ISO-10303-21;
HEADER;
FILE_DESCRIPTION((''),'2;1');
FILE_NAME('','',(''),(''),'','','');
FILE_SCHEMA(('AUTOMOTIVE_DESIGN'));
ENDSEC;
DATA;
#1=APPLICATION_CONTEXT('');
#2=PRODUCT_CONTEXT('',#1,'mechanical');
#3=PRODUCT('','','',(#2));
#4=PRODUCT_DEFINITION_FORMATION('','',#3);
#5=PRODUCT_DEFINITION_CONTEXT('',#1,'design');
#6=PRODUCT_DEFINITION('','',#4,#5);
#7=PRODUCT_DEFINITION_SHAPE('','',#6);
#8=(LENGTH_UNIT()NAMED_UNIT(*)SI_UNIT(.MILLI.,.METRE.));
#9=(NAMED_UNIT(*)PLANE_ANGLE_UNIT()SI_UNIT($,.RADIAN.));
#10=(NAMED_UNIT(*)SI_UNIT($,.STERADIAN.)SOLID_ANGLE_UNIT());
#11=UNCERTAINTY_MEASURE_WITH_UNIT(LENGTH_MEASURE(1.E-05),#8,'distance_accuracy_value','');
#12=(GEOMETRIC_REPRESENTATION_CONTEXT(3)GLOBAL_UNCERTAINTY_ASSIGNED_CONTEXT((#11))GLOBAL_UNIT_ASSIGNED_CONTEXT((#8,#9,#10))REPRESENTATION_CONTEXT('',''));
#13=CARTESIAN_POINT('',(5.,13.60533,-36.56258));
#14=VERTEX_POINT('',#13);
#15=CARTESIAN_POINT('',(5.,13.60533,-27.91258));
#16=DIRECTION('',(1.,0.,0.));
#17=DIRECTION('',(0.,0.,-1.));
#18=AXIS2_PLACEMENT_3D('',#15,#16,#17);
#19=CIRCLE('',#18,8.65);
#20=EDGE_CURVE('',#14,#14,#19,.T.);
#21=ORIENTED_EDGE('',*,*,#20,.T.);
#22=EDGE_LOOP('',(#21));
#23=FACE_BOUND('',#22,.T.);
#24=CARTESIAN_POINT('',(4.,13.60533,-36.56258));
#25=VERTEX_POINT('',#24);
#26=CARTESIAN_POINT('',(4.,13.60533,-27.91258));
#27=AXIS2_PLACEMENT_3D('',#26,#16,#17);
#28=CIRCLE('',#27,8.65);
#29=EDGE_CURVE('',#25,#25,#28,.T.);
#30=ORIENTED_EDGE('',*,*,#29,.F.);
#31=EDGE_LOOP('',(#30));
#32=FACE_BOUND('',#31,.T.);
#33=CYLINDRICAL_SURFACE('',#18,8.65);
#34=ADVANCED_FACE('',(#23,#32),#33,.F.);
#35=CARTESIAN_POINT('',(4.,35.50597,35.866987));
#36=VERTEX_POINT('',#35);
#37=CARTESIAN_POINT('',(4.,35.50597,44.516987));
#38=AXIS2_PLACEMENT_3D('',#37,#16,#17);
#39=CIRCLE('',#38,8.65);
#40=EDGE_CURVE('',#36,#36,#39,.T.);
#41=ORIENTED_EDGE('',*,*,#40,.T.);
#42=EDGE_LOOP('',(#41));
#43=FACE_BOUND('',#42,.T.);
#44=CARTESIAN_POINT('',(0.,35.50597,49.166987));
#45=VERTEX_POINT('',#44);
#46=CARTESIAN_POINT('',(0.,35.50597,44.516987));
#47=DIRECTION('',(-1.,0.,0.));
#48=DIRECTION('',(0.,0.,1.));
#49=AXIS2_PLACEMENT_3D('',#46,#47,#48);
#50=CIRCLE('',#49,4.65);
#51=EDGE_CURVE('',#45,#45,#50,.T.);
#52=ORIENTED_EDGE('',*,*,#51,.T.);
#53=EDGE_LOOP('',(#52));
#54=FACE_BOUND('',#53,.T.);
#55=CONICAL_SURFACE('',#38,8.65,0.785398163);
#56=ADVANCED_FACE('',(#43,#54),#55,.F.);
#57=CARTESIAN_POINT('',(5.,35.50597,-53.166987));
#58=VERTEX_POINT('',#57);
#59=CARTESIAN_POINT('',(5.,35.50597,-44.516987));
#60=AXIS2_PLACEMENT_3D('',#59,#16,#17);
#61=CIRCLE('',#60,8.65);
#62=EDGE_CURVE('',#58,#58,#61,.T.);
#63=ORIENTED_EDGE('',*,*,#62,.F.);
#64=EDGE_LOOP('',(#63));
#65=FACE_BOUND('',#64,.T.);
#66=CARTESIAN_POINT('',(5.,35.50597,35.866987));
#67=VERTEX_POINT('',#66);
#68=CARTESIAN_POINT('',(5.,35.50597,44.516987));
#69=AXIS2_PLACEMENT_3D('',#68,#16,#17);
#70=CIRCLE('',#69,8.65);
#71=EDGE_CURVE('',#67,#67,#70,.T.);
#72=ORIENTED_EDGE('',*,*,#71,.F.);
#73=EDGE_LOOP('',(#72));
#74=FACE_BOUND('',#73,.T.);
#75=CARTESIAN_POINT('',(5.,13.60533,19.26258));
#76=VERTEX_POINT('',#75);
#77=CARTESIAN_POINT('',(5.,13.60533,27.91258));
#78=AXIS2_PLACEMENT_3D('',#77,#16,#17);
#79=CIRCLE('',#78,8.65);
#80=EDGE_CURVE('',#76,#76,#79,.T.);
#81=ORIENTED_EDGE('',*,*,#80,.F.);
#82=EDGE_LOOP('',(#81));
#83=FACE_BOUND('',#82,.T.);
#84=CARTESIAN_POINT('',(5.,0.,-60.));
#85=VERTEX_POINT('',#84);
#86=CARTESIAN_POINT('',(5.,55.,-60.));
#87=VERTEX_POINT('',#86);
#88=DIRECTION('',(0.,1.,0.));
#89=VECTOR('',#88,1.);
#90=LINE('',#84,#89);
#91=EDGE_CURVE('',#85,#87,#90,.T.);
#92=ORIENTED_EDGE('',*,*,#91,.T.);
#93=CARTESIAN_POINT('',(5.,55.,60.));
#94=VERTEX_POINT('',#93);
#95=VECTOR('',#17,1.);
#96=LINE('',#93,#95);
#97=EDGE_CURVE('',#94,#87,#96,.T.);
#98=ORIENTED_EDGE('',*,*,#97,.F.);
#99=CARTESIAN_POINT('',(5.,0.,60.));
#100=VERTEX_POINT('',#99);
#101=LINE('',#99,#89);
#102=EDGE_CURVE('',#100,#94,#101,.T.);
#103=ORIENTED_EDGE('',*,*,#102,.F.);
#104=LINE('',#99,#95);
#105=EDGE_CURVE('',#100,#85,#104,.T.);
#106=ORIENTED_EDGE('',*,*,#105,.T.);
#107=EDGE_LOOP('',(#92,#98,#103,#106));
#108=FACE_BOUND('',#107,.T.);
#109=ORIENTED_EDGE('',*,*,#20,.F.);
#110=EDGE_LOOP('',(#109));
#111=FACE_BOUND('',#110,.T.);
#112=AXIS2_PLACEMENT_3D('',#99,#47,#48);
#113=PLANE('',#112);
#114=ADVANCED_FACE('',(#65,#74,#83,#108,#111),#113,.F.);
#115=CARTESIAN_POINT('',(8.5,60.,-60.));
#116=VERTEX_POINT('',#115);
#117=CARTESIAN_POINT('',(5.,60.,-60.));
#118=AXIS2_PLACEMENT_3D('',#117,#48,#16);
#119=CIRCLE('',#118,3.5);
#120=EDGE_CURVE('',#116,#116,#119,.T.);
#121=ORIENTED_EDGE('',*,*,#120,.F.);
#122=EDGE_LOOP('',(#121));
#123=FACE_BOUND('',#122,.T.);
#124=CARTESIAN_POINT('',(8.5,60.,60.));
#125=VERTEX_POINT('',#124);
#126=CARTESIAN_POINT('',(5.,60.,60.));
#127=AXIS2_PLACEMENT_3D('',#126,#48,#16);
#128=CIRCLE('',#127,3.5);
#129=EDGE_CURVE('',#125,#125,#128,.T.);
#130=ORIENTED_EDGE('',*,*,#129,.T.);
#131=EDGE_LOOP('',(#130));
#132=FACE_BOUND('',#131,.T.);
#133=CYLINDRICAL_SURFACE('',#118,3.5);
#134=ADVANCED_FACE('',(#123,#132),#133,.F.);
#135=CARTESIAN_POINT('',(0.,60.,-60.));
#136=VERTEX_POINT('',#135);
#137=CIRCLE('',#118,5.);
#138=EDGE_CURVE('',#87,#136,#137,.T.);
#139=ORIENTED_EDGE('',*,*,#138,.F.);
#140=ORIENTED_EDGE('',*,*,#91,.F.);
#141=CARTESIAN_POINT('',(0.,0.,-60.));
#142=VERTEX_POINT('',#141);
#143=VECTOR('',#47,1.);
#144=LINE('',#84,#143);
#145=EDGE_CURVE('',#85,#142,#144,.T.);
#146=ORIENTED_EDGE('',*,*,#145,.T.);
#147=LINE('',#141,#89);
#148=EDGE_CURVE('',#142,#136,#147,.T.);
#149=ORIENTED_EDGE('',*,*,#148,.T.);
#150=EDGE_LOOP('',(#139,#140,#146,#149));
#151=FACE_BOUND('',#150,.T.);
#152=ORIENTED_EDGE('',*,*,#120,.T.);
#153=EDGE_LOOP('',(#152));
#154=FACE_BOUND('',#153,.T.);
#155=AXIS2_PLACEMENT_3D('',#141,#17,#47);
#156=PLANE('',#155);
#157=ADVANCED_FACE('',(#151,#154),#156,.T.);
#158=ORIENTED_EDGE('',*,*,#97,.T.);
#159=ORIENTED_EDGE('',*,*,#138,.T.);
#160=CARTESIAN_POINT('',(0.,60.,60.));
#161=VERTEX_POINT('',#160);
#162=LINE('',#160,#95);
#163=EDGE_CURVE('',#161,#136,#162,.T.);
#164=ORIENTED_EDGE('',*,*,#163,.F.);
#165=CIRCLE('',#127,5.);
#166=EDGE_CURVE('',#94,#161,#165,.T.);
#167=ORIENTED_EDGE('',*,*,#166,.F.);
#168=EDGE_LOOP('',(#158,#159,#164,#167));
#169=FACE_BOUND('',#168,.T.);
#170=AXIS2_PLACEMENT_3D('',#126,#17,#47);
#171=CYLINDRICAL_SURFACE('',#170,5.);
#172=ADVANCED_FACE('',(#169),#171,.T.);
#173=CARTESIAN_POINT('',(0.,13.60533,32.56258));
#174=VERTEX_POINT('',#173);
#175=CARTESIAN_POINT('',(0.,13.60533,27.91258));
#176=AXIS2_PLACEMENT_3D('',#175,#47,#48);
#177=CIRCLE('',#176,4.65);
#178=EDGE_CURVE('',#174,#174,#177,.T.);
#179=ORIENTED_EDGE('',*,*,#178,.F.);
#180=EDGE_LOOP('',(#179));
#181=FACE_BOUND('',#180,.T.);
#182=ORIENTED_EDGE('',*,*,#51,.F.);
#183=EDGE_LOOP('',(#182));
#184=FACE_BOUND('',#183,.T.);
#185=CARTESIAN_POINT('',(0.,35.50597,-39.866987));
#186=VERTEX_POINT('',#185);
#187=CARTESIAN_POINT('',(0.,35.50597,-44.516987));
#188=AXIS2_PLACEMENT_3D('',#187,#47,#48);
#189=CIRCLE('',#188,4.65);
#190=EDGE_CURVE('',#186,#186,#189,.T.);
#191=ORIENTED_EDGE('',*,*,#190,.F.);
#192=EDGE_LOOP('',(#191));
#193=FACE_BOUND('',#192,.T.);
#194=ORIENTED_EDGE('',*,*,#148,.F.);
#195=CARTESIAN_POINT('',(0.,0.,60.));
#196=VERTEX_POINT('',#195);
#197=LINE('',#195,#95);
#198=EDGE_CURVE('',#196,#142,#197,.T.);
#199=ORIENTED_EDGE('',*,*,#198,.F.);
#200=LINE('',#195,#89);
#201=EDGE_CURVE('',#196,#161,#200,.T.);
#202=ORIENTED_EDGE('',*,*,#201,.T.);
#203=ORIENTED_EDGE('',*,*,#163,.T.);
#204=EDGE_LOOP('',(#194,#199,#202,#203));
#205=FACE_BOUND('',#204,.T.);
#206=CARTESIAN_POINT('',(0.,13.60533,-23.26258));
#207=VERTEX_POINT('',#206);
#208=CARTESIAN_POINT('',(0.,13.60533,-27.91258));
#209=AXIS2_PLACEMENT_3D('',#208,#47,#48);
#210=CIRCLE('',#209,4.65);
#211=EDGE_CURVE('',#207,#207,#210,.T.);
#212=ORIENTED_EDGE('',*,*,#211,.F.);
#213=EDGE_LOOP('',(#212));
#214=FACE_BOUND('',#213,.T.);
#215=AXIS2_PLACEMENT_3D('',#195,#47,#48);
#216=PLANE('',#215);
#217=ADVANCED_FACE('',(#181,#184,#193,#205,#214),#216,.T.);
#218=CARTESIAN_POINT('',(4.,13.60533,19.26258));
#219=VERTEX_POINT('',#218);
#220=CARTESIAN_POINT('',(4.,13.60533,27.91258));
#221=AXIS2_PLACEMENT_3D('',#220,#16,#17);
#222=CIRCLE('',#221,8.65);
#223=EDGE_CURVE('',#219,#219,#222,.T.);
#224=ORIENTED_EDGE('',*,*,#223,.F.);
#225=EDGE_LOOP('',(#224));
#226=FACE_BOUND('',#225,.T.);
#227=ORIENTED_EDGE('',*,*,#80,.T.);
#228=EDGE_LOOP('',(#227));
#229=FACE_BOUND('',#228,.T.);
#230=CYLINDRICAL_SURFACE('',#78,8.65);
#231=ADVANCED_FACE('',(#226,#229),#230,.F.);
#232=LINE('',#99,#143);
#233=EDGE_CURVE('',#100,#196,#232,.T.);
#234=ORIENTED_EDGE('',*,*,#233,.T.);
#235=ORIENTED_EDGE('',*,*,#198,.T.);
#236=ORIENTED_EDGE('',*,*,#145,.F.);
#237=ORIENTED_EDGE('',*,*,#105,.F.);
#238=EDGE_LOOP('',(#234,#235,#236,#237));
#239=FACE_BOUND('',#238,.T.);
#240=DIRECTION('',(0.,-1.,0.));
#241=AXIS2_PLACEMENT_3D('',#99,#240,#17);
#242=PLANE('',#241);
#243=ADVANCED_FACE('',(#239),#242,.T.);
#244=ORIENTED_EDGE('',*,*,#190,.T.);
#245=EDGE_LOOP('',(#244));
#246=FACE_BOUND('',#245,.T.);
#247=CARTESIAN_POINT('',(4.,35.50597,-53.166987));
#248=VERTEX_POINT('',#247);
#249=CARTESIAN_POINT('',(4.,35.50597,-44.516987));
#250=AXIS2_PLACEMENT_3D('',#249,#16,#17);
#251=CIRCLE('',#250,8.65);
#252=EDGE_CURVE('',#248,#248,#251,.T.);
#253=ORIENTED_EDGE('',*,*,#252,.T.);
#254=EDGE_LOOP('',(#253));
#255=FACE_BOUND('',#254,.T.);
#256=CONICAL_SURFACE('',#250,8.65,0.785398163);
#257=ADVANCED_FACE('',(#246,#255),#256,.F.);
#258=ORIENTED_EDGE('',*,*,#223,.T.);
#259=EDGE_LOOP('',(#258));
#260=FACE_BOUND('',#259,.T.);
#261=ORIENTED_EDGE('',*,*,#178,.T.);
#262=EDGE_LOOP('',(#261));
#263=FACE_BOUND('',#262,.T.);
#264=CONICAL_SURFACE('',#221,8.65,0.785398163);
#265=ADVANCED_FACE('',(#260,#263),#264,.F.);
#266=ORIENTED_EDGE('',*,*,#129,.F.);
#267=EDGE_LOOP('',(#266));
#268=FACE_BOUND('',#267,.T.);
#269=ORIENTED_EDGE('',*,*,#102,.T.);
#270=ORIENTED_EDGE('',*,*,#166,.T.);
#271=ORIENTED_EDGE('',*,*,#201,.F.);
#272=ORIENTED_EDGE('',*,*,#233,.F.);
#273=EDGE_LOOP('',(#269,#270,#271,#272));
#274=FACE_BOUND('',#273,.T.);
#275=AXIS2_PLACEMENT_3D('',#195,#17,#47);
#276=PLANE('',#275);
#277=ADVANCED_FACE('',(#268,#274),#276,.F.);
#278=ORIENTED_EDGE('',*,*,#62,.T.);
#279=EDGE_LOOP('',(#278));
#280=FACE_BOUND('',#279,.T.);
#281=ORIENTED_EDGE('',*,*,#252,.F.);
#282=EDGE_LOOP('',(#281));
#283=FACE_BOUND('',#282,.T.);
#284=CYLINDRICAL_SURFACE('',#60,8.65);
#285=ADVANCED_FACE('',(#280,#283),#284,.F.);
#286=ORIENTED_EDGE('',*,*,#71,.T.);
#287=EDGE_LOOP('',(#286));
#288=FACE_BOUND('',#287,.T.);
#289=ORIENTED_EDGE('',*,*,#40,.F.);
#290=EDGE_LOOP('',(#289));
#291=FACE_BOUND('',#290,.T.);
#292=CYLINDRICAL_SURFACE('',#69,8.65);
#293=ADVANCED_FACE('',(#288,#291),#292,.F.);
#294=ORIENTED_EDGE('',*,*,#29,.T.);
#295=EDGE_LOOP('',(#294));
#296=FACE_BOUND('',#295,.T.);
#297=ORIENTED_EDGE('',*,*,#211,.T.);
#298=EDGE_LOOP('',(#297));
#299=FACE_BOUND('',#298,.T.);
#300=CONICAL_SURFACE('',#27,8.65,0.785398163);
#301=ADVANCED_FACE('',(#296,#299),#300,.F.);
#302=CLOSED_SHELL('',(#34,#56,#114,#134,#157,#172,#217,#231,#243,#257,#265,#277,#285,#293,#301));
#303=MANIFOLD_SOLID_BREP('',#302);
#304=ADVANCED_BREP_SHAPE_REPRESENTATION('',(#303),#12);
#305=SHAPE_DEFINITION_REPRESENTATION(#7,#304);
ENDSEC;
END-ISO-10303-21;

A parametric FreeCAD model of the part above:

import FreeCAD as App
import Part
import Sketcher

V = App.Vector
Q = App.Units.Quantity

doc = App.newDocument("Part")
body = doc.addObject("PartDesign::Body", "Body")

# Sketch on XY plane
sketch1 = body.newObject("Sketcher::SketchObject", "Sketch")
sketch1.AttachmentSupport = (doc.getObject("XY_Plane"), [""])
sketch1.MapMode = "FlatFace"
sketch1.addGeometry([
    Part.LineSegment(V(0, 60, 0), V(0, 0, 0)),
    Part.LineSegment(V(0, 0, 0), V(5, 0, 0)),
    Part.LineSegment(V(5, 0, 0), V(5, 60, 0)),
    Part.LineSegment(V(5, 60, 0), V(0, 60, 0)),
], False)
sketch1.addConstraint([
    Sketcher.Constraint("Coincident", 0, 2, 1, 1),
    Sketcher.Constraint("Coincident", 1, 2, 2, 1),
    Sketcher.Constraint("Coincident", 2, 2, 3, 1),
    Sketcher.Constraint("Coincident", 3, 2, 0, 1),
    Sketcher.Constraint("Vertical", 0),
    Sketcher.Constraint("Horizontal", 1),
    Sketcher.Constraint("Vertical", 2),
    Sketcher.Constraint("Horizontal", 3),
    Sketcher.Constraint("Coincident", 0, 2, -1, 1),
    Sketcher.Constraint("DistanceX", 1, 1, 1, 2, 5.0),
    Sketcher.Constraint("DistanceY", 0, 2, 0, 1, 60.0),
])
pad1 = body.newObject("PartDesign::Pad", "Pad")
pad1.Profile = sketch1
pad1.Length = 120
pad1.Midplane = True

# Sketch on XY plane
sketch2 = body.newObject("Sketcher::SketchObject", "Sketch001")
sketch2.AttachmentSupport = (doc.getObject("XY_Plane"), [""])
sketch2.MapMode = "FlatFace"
sketch2.AttachmentOffset = App.Placement(V(0, 0, 60), App.Rotation())
sketch2.addGeometry(Part.Circle(V(5, 60, 0), V(0, 0, 1), 5), False)
sketch2.addConstraint([
    Sketcher.Constraint("Diameter", 0, 10.0),
    Sketcher.Constraint("DistanceX", -1, 1, 0, 3, 5.0),
    Sketcher.Constraint("DistanceY", -1, 1, 0, 3, 60.0),
])

# Sketch on XZ plane
sketch3 = body.newObject("Sketcher::SketchObject", "Sketch002")
sketch3.AttachmentSupport = (doc.getObject("XZ_Plane"), [""])
sketch3.MapMode = "FlatFace"
sketch3.AttachmentOffset = App.Placement(V(0, 0, -60), App.Rotation())
sketch3.addGeometry(Part.LineSegment(V(5, 60, 0), V(5, -60, 0)), False)
sketch3.addConstraint([
    Sketcher.Constraint("Vertical", 0),
    Sketcher.Constraint("DistanceY", 0, 2, 0, 1, 120.0),
    Sketcher.Constraint("DistanceX", -1, 1, 0, 1, 5.0),
    Sketcher.Constraint("DistanceY", -1, 1, 0, 1, 60.0),
])
doc.recompute()

additivepipe = body.newObject("PartDesign::AdditivePipe", "AdditivePipe")
additivepipe.Profile = sketch2
additivepipe.Spine = (sketch3, ["Edge1"])

# Sketch on XY plane
sketch4 = body.newObject("Sketcher::SketchObject", "Sketch003")
sketch4.AttachmentSupport = (doc.getObject("XY_Plane"), [""])
sketch4.MapMode = "FlatFace"
sketch4.AttachmentOffset = App.Placement(V(0, 0, 60), App.Rotation())
sketch4.addGeometry(Part.Circle(V(5, 60, 0), V(0, 0, 1), 3.5), False)
sketch4.addConstraint([
    Sketcher.Constraint("Diameter", 0, 7.0),
    Sketcher.Constraint("DistanceX", -1, 1, 0, 3, 5.0),
    Sketcher.Constraint("DistanceY", -1, 1, 0, 3, 60.0),
])
pocket1 = body.newObject("PartDesign::Pocket", "Pocket")
pocket1.Profile = sketch4
pocket1.Type = "ThroughAll"

# Sketch on XZ plane
sketch5 = body.newObject("Sketcher::SketchObject", "Sketch004")
sketch5.AttachmentSupport = (doc.getObject("XZ_Plane"), [""])
sketch5.MapMode = "FlatFace"
sketch5.AttachmentOffset = App.Placement(V(0, 0, -35.50597), App.Rotation())
sketch5.addGeometry([
    Part.LineSegment(V(0, 44.52, 0), V(5, 44.52, 0)),  # 0
    Part.LineSegment(V(5, 44.52, 0), V(5, 35.87, 0)),  # 1
    Part.LineSegment(V(5, 35.87, 0), V(4, 35.87, 0)),  # 2
    Part.LineSegment(V(4, 35.87, 0), V(-0.15, 40.02, 0)),  # 3
    Part.LineSegment(V(-0.15, 40.02, 0), V(0, 40.02, 0)),  # 4
    Part.LineSegment(V(0, 40.02, 0), V(0, 44.52, 0)),  # 5
], False)
sketch5.addGeometry(Part.LineSegment(V(5, 44.52, 0), V(-0.15, 44.52, 0)), True)  # axis
sketch5.addConstraint([
    Sketcher.Constraint("Coincident", 0, 2, 1, 1),
    Sketcher.Constraint("Coincident", 1, 2, 2, 1),
    Sketcher.Constraint("Coincident", 2, 2, 3, 1),
    Sketcher.Constraint("Coincident", 3, 2, 4, 1),
    Sketcher.Constraint("Coincident", 4, 2, 5, 1),
    Sketcher.Constraint("Coincident", 5, 2, 0, 1),
    Sketcher.Constraint("Horizontal", 0),
    Sketcher.Constraint("Vertical", 1),
    Sketcher.Constraint("Horizontal", 2),
    Sketcher.Constraint("Horizontal", 4),
    Sketcher.Constraint("Vertical", 5),
    Sketcher.Constraint("Horizontal", 6),
    Sketcher.Constraint("Coincident", 6, 1, 0, 2),
    Sketcher.Constraint("PointOnObject", 4, 2, -2),
    Sketcher.Constraint("Vertical", 3, 2, 6, 2),
    Sketcher.Constraint("DistanceX", 0, 1, 0, 2, 5.0),
    Sketcher.Constraint("DistanceX", 2, 2, 2, 1, 1.0),
    Sketcher.Constraint("Angle", 3, Q("135 deg")),
    Sketcher.Constraint("DistanceY", 5, 1, 5, 2, 4.5),
    Sketcher.Constraint("DistanceX", 4, 1, 4, 2, 0.15),
    Sketcher.Constraint("DistanceY", -1, 1, 0, 2, 44.516987),
])
groove = body.newObject("PartDesign::Groove", "Groove")
groove.Profile = sketch5
groove.ReferenceAxis = (sketch5, ["Axis0"])
groove.Angle = 360
doc.recompute()

datumline = body.newObject("PartDesign::Line", "DatumLine")
datumline.Placement = App.Placement(V(0, 0, 0), App.Rotation(V(0, 0, 1), V(0, -0.796864192, -0.604158472)))
linearpattern = body.newObject("PartDesign::LinearPattern", "LinearPattern")
linearpattern.Originals = [groove]
linearpattern.Direction = (datumline, [""])
linearpattern.Mode = "offset"
linearpattern.Offset = 27.483529
linearpattern.Occurrences = 2
body.Tip = linearpattern
doc.recompute()

mirrored = body.newObject("PartDesign::Mirrored", "Mirrored")
mirrored.Originals = [groove]
mirrored.MirrorPlane = (doc.getObject("XY_Plane"), [""])
body.Tip = mirrored

# Sketch on XZ plane
sketch6 = body.newObject("Sketcher::SketchObject", "Sketch005")
sketch6.AttachmentSupport = (doc.getObject("XZ_Plane"), [""])
sketch6.MapMode = "FlatFace"
sketch6.AttachmentOffset = App.Placement(V(0, 0, -13.60533), App.Rotation())
sketch6.addGeometry([
    Part.LineSegment(V(5, -27.91, 0), V(0, -27.91, 0)),  # 0
    Part.LineSegment(V(0, -27.91, 0), V(0, -23.41, 0)),  # 1
    Part.LineSegment(V(0, -23.41, 0), V(-0.15, -23.41, 0)),  # 2
    Part.LineSegment(V(-0.15, -23.41, 0), V(4, -19.26, 0)),  # 3
    Part.LineSegment(V(4, -19.26, 0), V(5, -19.26, 0)),  # 4
    Part.LineSegment(V(5, -19.26, 0), V(5, -27.91, 0)),  # 5
], False)
sketch6.addGeometry(Part.LineSegment(V(-0.15, -27.91, 0), V(5, -27.91, 0)), True)  # axis
sketch6.addConstraint([
    Sketcher.Constraint("Coincident", 0, 2, 1, 1),
    Sketcher.Constraint("Coincident", 1, 2, 2, 1),
    Sketcher.Constraint("Coincident", 2, 2, 3, 1),
    Sketcher.Constraint("Coincident", 3, 2, 4, 1),
    Sketcher.Constraint("Coincident", 4, 2, 5, 1),
    Sketcher.Constraint("Coincident", 5, 2, 0, 1),
    Sketcher.Constraint("Horizontal", 0),
    Sketcher.Constraint("Vertical", 1),
    Sketcher.Constraint("Horizontal", 2),
    Sketcher.Constraint("Horizontal", 4),
    Sketcher.Constraint("Vertical", 5),
    Sketcher.Constraint("Horizontal", 6),
    Sketcher.Constraint("Coincident", 6, 2, 5, 2),
    Sketcher.Constraint("PointOnObject", 0, 2, -2),
    Sketcher.Constraint("Vertical", 2, 2, 6, 1),
    Sketcher.Constraint("DistanceX", 0, 2, 0, 1, 5.0),
    Sketcher.Constraint("DistanceX", 4, 1, 4, 2, 1.0),
    Sketcher.Constraint("Angle", 3, Q("45 deg")),
    Sketcher.Constraint("DistanceY", 1, 1, 1, 2, 4.5),
    Sketcher.Constraint("DistanceX", 2, 2, 2, 1, 0.15),
    Sketcher.Constraint("DistanceY", 0, 2, -1, 1, 27.91258),
])
groove2 = body.newObject("PartDesign::Groove", "Groove001")
groove2.Profile = sketch6
groove2.ReferenceAxis = (sketch6, ["Axis0"])
groove2.Angle = 360

doc.recompute()
